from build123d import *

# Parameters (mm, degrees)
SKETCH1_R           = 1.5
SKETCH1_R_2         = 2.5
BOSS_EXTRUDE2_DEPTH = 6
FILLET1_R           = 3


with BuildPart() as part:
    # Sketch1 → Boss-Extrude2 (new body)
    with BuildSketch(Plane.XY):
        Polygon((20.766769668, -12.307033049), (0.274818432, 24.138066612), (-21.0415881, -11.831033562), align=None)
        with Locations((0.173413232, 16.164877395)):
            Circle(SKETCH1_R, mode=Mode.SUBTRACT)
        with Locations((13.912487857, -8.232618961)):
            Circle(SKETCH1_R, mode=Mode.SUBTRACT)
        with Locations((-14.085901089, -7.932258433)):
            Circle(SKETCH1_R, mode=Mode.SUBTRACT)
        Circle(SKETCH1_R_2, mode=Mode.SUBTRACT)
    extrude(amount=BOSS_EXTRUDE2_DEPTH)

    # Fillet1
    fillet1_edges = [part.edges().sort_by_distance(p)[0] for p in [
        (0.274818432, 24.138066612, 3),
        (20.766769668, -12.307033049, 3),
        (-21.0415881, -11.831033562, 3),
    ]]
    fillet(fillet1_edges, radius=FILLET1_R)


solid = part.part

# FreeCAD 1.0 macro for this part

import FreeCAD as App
import Part
import Sketcher


def edges_at(feature, points):
    """Names of the edges that pass closest to the given points."""
    edges = feature.Shape.Edges
    near = lambda p: min(range(len(edges)), key=lambda i: edges[i].distToShape(Part.Vertex(*p))[0])
    return sorted({f"Edge{near(p) + 1}" for p in points})

doc = App.newDocument("Part")
body = doc.addObject("PartDesign::Body", "Body")

sketch1 = doc.addObject("Sketcher::SketchObject", "Sketch")
body.addObject(sketch1)
sketch1.AttachmentSupport = (doc.XY_Plane, [""])
sketch1.MapMode = "FlatFace"
sketch1.addGeometry([
    Part.LineSegment(App.Vector(20.8, -12.3, 0), App.Vector(0.3, 24.1, 0)),
    Part.LineSegment(App.Vector(0.3, 24.1, 0), App.Vector(-21, -11.8, 0)),
    Part.LineSegment(App.Vector(-21, -11.8, 0), App.Vector(20.8, -12.3, 0)),
    Part.Circle(App.Vector(-14.1, -7.9, 0), App.Vector(0, 0, 1), 1.5),
    Part.Circle(App.Vector(13.9, -8.2, 0), App.Vector(0, 0, 1), 1.5),
    Part.Circle(App.Vector(0, 0, 0), App.Vector(0, 0, 1), 2.5),
    Part.Circle(App.Vector(0.2, 16.2, 0), App.Vector(0, 0, 1), 1.5),
], False)
sketch1.addConstraint([
    Sketcher.Constraint("Coincident", 0, 2, 1, 1),
    Sketcher.Constraint("Coincident", 1, 2, 2, 1),
    Sketcher.Constraint("Coincident", 2, 2, 0, 1),
    Sketcher.Constraint("Coincident", 5, 3, -1, 1),
    Sketcher.Constraint("Equal", 3, 4),
    Sketcher.Constraint("Equal", 4, 6),
    Sketcher.Constraint("Equal", 0, 1),
    Sketcher.Constraint("Equal", 1, 2),
    Sketcher.Constraint("Diameter", 3, 3.0),
    Sketcher.Constraint("Diameter", 5, 5.0),
    Sketcher.Constraint("DistanceX", 1, 2, 6, 3, 21.215001),
    Sketcher.Constraint("DistanceX", 3, 3, -1, 1, 14.085901),
    Sketcher.Constraint("DistanceY", 1, 2, 0, 2, 35.9691),
    Sketcher.Constraint("DistanceY", 2, 2, 0, 2, 36.4451),
    Sketcher.Constraint("DistanceY", 3, 3, -1, 1, 7.932258),
    Sketcher.Constraint("DistanceY", 4, 3, -1, 1, 8.232619),
    Sketcher.Constraint("DistanceX", -1, 1, 0, 2, 0.274818),
    Sketcher.Constraint("DistanceX", 3, 3, 4, 3, 27.998389),
    Sketcher.Constraint("DistanceY", 6, 3, 0, 2, 7.973189),
    Sketcher.Constraint("DistanceY", -1, 1, 6, 3, 16.164877),
])
pad1 = doc.addObject("PartDesign::Pad", "Pad")
body.addObject(pad1)
pad1.Profile = sketch1
pad1.Length = 6
doc.recompute()

fillet = doc.addObject("PartDesign::Fillet", "Fillet")
body.addObject(fillet)
fillet.Base = (pad1, edges_at(pad1, [(0.275, 24.138, 3), (20.767, -12.307, 3), (-21.042, -11.831, 3)]))
fillet.Radius = 3

doc.recompute()
